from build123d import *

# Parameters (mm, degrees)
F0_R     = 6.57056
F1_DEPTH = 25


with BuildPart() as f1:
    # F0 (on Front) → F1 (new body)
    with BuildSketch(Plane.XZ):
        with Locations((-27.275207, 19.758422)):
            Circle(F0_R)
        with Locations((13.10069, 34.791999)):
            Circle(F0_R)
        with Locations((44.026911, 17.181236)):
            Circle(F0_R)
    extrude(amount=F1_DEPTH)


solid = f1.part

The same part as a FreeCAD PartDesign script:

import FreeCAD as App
import Part
import Sketcher
from FreeCAD import Vector
Q = App.Units.Quantity

doc = App.newDocument("Part")
params = doc.addObject("Spreadsheet::Sheet", "Params")
for row, (alias, value) in enumerate([
    ("pad1_length", "25 mm"),
], start=1):
    params.set(f"A{row}", alias)
    params.set(f"B{row}", "=" + value)
    params.setAlias(f"B{row}", alias)

body = doc.addObject("PartDesign::Body", "Body")
body.AllowCompound = True

# Sketch on XZ plane
sketch1 = body.newObject("Sketcher::SketchObject", "Sketch")
sketch1.AttachmentSupport = (doc.getObject("XZ_Plane"), [""])
sketch1.MapMode = "FlatFace"
sketch1.addGeometry([
    Part.Circle(Vector(-27, 20, 0), Vector(0, 0, 1), 7),
    Part.Circle(Vector(13, 35, 0), Vector(0, 0, 1), 7),
    Part.Circle(Vector(44, 17, 0), Vector(0, 0, 1), 7),
], False)
sketch1.addConstraint([
    Sketcher.Constraint("Equal", 0, 1),
    Sketcher.Constraint("Equal", 1, 2),
    Sketcher.Constraint("Diameter", 0, Q("13.14112 mm")),
    Sketcher.Constraint("DistanceY", -1, 1, 1, 3, Q("34.791999 mm")),
    Sketcher.Constraint("DistanceY", -1, 1, 0, 3, Q("19.758422 mm")),
    Sketcher.Constraint("DistanceX", -1, 1, 1, 3, Q("13.10069 mm")),
    Sketcher.Constraint("DistanceX", -1, 1, 2, 3, Q("44.026911 mm")),
    Sketcher.Constraint("DistanceX", 0, 3, 2, 3, Q("71.302118 mm")),
    Sketcher.Constraint("DistanceY", -1, 1, 2, 3, Q("17.181236 mm")),
])
pad1 = body.newObject("PartDesign::Pad", "Pad")
pad1.Profile = sketch1
pad1.setExpression("Length", "Params.pad1_length")

doc.recompute()
